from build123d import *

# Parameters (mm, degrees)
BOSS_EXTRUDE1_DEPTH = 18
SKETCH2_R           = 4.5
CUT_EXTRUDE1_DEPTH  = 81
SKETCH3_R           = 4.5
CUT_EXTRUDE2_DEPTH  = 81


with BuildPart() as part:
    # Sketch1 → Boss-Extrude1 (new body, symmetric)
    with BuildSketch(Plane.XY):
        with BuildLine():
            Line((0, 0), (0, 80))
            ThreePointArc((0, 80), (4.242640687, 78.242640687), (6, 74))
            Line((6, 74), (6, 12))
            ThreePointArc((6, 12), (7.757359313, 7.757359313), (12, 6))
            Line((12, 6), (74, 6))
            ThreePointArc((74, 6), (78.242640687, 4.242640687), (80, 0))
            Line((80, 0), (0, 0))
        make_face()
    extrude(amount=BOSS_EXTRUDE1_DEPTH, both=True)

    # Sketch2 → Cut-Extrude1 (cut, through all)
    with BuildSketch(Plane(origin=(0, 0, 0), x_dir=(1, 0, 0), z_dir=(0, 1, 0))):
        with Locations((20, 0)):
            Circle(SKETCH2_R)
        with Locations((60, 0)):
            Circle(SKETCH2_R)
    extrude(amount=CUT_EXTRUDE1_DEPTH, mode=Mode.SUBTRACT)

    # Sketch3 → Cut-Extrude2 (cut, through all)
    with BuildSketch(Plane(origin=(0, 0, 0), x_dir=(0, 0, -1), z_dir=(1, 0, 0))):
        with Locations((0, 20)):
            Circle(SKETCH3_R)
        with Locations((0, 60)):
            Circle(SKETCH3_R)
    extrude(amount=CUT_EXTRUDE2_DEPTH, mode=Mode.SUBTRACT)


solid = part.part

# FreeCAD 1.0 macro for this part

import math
import FreeCAD as App
import Part
import Sketcher

doc = App.newDocument("Part")
body = doc.addObject("PartDesign::Body", "Body")

sketch1 = body.newObject("Sketcher::SketchObject", "Sketch")
sketch1.AttachmentSupport = (doc.getObject("XY_Plane"), [""])
sketch1.MapMode = "FlatFace"
sketch1.addGeometry([
    Part.LineSegment(App.Vector(0, 80, 0), App.Vector(0, 0, 0)),
    Part.LineSegment(App.Vector(0, 0, 0), App.Vector(80, 0, 0)),
    Part.ArcOfCircle(Part.Circle(App.Vector(74, 0, 0), App.Vector(0, 0, 1), 6), math.radians(0), math.radians(90)),
    Part.LineSegment(App.Vector(74, 6, 0), App.Vector(12, 6, 0)),
    Part.ArcOfCircle(Part.Circle(App.Vector(12, 12, 0), App.Vector(0, 0, 1), 6), math.radians(180), math.radians(270)),
    Part.LineSegment(App.Vector(6, 12, 0), App.Vector(6, 74, 0)),
    Part.ArcOfCircle(Part.Circle(App.Vector(0, 74, 0), App.Vector(0, 0, 1), 6), math.radians(0), math.radians(90)),
], False)
sketch1.addConstraint([
    Sketcher.Constraint("Coincident", 0, 2, 1, 1),
    Sketcher.Constraint("Coincident", 1, 2, 2, 1),
    Sketcher.Constraint("Tangent", 2, 2, 3, 1),
    Sketcher.Constraint("Tangent", 3, 2, 4, 2),
    Sketcher.Constraint("Tangent", 4, 1, 5, 1),
    Sketcher.Constraint("Tangent", 5, 2, 6, 1),
    Sketcher.Constraint("Coincident", 6, 2, 0, 1),
    Sketcher.Constraint("Vertical", 0),
    Sketcher.Constraint("Horizontal", 1),
    Sketcher.Constraint("Horizontal", 3),
    Sketcher.Constraint("Vertical", 5),
    Sketcher.Constraint("Coincident", 0, 2, -1, 1),
    Sketcher.Constraint("Equal", 2, 4),
    Sketcher.Constraint("Equal", 4, 6),
    Sketcher.Constraint("PointOnObject", 2, 3, -1),
    Sketcher.Constraint("PointOnObject", 6, 3, -2),
    Sketcher.Constraint("Equal", 1, 0),
    Sketcher.Constraint("Radius", 2, 6.0),
    Sketcher.Constraint("DistanceX", 1, 1, 1, 2, 80.0),
])
pad1 = body.newObject("PartDesign::Pad", "Pad")
pad1.Profile = sketch1
pad1.Length = 36
pad1.Midplane = True

sketch2 = body.newObject("Sketcher::SketchObject", "Sketch001")
sketch2.AttachmentSupport = (doc.getObject("XZ_Plane"), [""])
sketch2.MapMode = "FlatFace"
sketch2.addGeometry([
    Part.Circle(App.Vector(20, 0, 0), App.Vector(0, 0, 1), 4.5),
    Part.Circle(App.Vector(60, 0, 0), App.Vector(0, 0, 1), 4.5),
], False)
sketch2.addConstraint([
    Sketcher.Constraint("Equal", 0, 1),
    Sketcher.Constraint("PointOnObject", 0, 3, -1),
    Sketcher.Constraint("PointOnObject", 1, 3, -1),
    Sketcher.Constraint("Diameter", 0, 9.0),
    Sketcher.Constraint("DistanceX", -1, 1, 0, 3, 20.0),
    Sketcher.Constraint("DistanceX", -1, 1, 1, 3, 60.0),
])
pocket1 = body.newObject("PartDesign::Pocket", "Pocket")
pocket1.Profile = sketch2
pocket1.Type = "ThroughAll"

sketch3 = body.newObject("Sketcher::SketchObject", "Sketch002")
sketch3.AttachmentSupport = (doc.getObject("YZ_Plane"), [""])
sketch3.MapMode = "FlatFace"
sketch3.addGeometry([
    Part.Circle(App.Vector(20, 0, 0), App.Vector(0, 0, 1), 4.5),
    Part.Circle(App.Vector(60, 0, 0), App.Vector(0, 0, 1), 4.5),
], False)
sketch3.addConstraint([
    Sketcher.Constraint("Equal", 0, 1),
    Sketcher.Constraint("PointOnObject", 0, 3, -1),
    Sketcher.Constraint("PointOnObject", 1, 3, -1),
    Sketcher.Constraint("Diameter", 0, 9.0),
    Sketcher.Constraint("DistanceX", -1, 1, 0, 3, 20.0),
    Sketcher.Constraint("DistanceX", -1, 1, 1, 3, 60.0),
])
pocket2 = body.newObject("PartDesign::Pocket", "Pocket001")
pocket2.Profile = sketch3
pocket2.Type = "ThroughAll"
pocket2.Reversed = True

doc.recompute()
